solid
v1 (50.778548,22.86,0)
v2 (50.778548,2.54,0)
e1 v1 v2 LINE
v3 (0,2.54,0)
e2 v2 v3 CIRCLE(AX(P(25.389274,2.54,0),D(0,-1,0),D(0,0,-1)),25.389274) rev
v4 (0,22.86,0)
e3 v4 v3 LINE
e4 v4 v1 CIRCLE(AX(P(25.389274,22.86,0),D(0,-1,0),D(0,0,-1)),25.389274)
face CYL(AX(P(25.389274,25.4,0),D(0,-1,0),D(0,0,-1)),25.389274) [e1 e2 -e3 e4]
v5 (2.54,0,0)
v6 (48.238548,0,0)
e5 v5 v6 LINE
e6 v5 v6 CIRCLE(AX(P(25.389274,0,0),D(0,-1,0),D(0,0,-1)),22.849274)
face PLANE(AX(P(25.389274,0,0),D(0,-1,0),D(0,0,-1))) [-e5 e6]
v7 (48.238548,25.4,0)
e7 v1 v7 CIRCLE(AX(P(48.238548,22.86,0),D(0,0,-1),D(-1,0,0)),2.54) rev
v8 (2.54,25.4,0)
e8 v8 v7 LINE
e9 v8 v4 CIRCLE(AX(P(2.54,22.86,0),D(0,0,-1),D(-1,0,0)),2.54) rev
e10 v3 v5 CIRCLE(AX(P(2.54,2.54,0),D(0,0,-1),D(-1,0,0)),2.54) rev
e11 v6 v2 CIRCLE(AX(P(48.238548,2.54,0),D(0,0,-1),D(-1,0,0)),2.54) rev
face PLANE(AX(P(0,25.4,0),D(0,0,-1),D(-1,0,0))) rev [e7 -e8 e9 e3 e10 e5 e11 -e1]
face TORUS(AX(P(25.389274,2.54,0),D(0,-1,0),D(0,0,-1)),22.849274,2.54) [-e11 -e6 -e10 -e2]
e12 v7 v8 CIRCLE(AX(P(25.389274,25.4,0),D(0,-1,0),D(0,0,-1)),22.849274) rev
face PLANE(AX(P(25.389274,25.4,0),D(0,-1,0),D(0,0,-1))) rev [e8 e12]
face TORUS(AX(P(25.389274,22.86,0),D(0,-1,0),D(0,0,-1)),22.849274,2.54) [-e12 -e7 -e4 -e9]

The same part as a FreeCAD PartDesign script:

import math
import FreeCAD as App
import Part
import Sketcher
Q = App.Units.Quantity


def edges_at(feature, points):
    """Names of the edges that pass closest to the given points."""
    edges = feature.Shape.Edges
    near = lambda p: min(range(len(edges)), key=lambda i: edges[i].distToShape(Part.Vertex(*p))[0])
    return sorted({f"Edge{near(p) + 1}" for p in points})

doc = App.newDocument("Part")
body = doc.addObject("PartDesign::Body", "Body")

# Sketch on XZ plane
sketch1 = body.newObject("Sketcher::SketchObject", "Sketch")
sketch1.AttachmentSupport = (doc.getObject("XZ_Plane"), [""])
sketch1.MapMode = "FlatFace"
sketch1.addGeometry([
    Part.LineSegment(App.Vector(0, 0, 0), App.Vector(51, 0, 0)),
    Part.ArcOfCircle(Part.Circle(App.Vector(25, 0, 0), App.Vector(0, 0, 1), 25), math.radians(-180), math.radians(0)),
], False)
sketch1.addConstraint([
    Sketcher.Constraint("Coincident", 0, 1, 1, 1),
    Sketcher.Constraint("Coincident", 1, 2, 0, 2),
    Sketcher.Constraint("Horizontal", 0),
    Sketcher.Constraint("Coincident", 0, 1, -1, 1),
    Sketcher.Constraint("PointOnObject", 1, 3, -1),
    Sketcher.Constraint("Radius", 1, Q("25.389274 mm")),
])
pad1 = body.newObject("PartDesign::Pad", "Pad")
pad1.Profile = sketch1
pad1.Length = Q("1 in")
pad1.Reversed = True
doc.recompute()

fillet = body.newObject("PartDesign::Fillet", "Fillet")
fillet.Base = (pad1, edges_at(pad1, [(25.389, 0, -25.389), (25.389, 25.4, -25.389)]))
fillet.Radius = Q("0.1 in")

doc.recompute()
